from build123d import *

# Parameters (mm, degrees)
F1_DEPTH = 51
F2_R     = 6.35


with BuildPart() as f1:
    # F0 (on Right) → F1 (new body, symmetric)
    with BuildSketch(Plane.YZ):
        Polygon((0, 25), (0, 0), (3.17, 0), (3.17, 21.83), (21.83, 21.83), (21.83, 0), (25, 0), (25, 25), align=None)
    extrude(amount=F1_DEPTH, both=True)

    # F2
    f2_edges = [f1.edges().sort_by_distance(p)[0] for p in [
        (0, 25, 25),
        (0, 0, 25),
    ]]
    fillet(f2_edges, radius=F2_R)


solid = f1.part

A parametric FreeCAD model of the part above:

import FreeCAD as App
import Part
import Sketcher
from FreeCAD import Vector


def edges_at(feature, points):
    """Names of the edges that pass closest to the given points."""
    edges = feature.Shape.Edges
    near = lambda p: min(range(len(edges)), key=lambda i: edges[i].distToShape(Part.Vertex(*p))[0])
    return sorted({f"Edge{near(p) + 1}" for p in points})

doc = App.newDocument("Part")
params = doc.addObject("Spreadsheet::Sheet", "Params")
for row, (alias, value) in enumerate([
    ("sketch1_width", "25 mm"),
    ("sketch1_width2", "3.17 mm"),
    ("sketch1_height", "21.83 mm"),
    ("pad1_length", "102 mm"),
    ("fillet_radius", "6.35 mm"),
], start=1):
    params.set(f"A{row}", alias)
    params.set(f"B{row}", "=" + value)
    params.setAlias(f"B{row}", alias)

body = doc.addObject("PartDesign::Body", "Body")

sketch1 = body.newObject("Sketcher::SketchObject", "Sketch")
sketch1.AttachmentSupport = (doc.getObject("YZ_Plane"), [""])
sketch1.MapMode = "FlatFace"
sketch1.addGeometry(Part.LineSegment(Vector(0, 25, 0), Vector(0, 0, 0)), False)
sketch1.addGeometry(Part.LineSegment(Vector(0, 0, 0), Vector(3.2, 0, 0)), False)
sketch1.addGeometry(Part.LineSegment(Vector(3.2, 0, 0), Vector(3.2, 21.8, 0)), False)
sketch1.addGeometry(Part.LineSegment(Vector(3.2, 21.8, 0), Vector(21.8, 21.8, 0)), False)
sketch1.addGeometry(Part.LineSegment(Vector(21.8, 21.8, 0), Vector(21.8, 0, 0)), False)
sketch1.addGeometry(Part.LineSegment(Vector(21.8, 0, 0), Vector(25, 0, 0)), False)
sketch1.addGeometry(Part.LineSegment(Vector(25, 0, 0), Vector(25, 25, 0)), False)
sketch1.addGeometry(Part.LineSegment(Vector(25, 25, 0), Vector(0, 25, 0)), False)
sketch1.addConstraint(Sketcher.Constraint("Coincident", 0, 2, 1, 1))
sketch1.addConstraint(Sketcher.Constraint("Coincident", 1, 2, 2, 1))
sketch1.addConstraint(Sketcher.Constraint("Coincident", 2, 2, 3, 1))
sketch1.addConstraint(Sketcher.Constraint("Coincident", 3, 2, 4, 1))
sketch1.addConstraint(Sketcher.Constraint("Coincident", 4, 2, 5, 1))
sketch1.addConstraint(Sketcher.Constraint("Coincident", 5, 2, 6, 1))
sketch1.addConstraint(Sketcher.Constraint("Coincident", 6, 2, 7, 1))
sketch1.addConstraint(Sketcher.Constraint("Coincident", 7, 2, 0, 1))
sketch1.addConstraint(Sketcher.Constraint("Vertical", 0))
sketch1.addConstraint(Sketcher.Constraint("Horizontal", 1))
sketch1.addConstraint(Sketcher.Constraint("Vertical", 2))
sketch1.addConstraint(Sketcher.Constraint("Horizontal", 3))
sketch1.addConstraint(Sketcher.Constraint("Vertical", 4))
sketch1.addConstraint(Sketcher.Constraint("Horizontal", 5))
sketch1.addConstraint(Sketcher.Constraint("Vertical", 6))
sketch1.addConstraint(Sketcher.Constraint("Horizontal", 7))
sketch1.addConstraint(Sketcher.Constraint("Coincident", 0, 2, -1, 1))
sketch1.addConstraint(Sketcher.Constraint("PointOnObject", 4, 2, -1))
sketch1.addConstraint(Sketcher.Constraint("Equal", 1, 5))
sketch1.addConstraint(Sketcher.Constraint("Equal", 7, 0))
sketch1.addConstraint(Sketcher.Constraint("DistanceX", 7, 2, 7, 1, 25.0))
sketch1.addConstraint(Sketcher.Constraint("DistanceX", 1, 1, 1, 2, 3.17))
sketch1.addConstraint(Sketcher.Constraint("DistanceY", 2, 1, 2, 2, 21.83))
sketch1.setExpression("Constraints[20]", "Params.sketch1_width")
sketch1.setExpression("Constraints[21]", "Params.sketch1_width2")
sketch1.setExpression("Constraints[22]", "Params.sketch1_height")
pad1 = body.newObject("PartDesign::Pad", "Pad")
pad1.Profile = sketch1
pad1.setExpression("Length", "Params.pad1_length")
pad1.Midplane = True
doc.recompute()

fillet = body.newObject("PartDesign::Fillet", "Fillet")
fillet.Base = (pad1, edges_at(pad1, [(0, 25, 25), (0, 0, 25)]))
fillet.setExpression("Radius", "Params.fillet_radius")

doc.recompute()
